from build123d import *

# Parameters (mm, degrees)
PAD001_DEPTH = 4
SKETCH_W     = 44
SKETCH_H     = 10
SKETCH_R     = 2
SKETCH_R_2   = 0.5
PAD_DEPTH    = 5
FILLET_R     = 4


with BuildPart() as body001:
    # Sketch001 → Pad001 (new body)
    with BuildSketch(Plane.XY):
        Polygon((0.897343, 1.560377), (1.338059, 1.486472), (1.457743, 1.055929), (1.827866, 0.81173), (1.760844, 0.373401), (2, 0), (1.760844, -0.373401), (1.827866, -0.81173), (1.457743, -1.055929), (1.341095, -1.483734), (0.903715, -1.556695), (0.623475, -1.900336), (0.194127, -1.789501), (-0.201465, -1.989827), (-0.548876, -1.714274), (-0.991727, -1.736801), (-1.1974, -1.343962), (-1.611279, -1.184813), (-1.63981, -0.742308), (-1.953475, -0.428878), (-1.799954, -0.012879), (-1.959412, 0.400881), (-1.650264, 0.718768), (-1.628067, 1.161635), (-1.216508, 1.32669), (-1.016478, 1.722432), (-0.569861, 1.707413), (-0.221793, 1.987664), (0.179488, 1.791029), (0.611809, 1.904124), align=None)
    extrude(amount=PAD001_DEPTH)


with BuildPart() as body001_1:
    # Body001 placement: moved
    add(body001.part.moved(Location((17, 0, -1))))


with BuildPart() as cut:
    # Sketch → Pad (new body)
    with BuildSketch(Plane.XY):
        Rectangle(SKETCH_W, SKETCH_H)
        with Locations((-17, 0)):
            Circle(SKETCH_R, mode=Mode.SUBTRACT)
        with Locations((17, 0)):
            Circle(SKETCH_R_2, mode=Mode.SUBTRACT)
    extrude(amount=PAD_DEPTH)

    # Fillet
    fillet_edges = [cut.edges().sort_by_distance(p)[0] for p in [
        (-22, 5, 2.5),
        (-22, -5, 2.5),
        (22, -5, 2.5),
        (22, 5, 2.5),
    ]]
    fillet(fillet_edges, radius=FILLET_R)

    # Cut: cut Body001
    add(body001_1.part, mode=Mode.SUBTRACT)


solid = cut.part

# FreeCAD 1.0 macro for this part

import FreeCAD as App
import Part
import Sketcher

V = App.Vector
Q = App.Units.Quantity


def edges_at(feature, points):
    """Names of the edges that pass closest to the given points."""
    edges = feature.Shape.Edges
    near = lambda p: min(range(len(edges)), key=lambda i: edges[i].distToShape(Part.Vertex(*p))[0])
    return sorted({f"Edge{near(p) + 1}" for p in points})

doc = App.newDocument("Part")
params = doc.addObject("Spreadsheet::Sheet", "Params")
for row, (alias, value) in enumerate([
    ("pad1_length", "4 mm"),
    ("sketch2_diameter", "4 mm"),
    ("sketch2_diameter2", "1 mm"),
    ("sketch2_width", "44 mm"),
    ("sketch2_height", "10 mm"),
    ("pad2_length", "5 mm"),
    ("fillet_radius", "4 mm"),
], start=1):
    params.set(f"A{row}", alias)
    params.set(f"B{row}", "=" + value)
    params.setAlias(f"B{row}", alias)

body = doc.addObject("PartDesign::Body", "Body")

sketch1 = body.newObject("Sketcher::SketchObject", "Sketch")
sketch1.AttachmentSupport = (doc.getObject("XY_Plane"), [""])
sketch1.MapMode = "FlatFace"
sketch1.addGeometry([
    Part.LineSegment(V(1.338059, 1.486472, 0), V(0.897343, 1.560377, 0)),
    Part.LineSegment(V(0.897343, 1.560377, 0), V(0.611809, 1.904124, 0)),
    Part.LineSegment(V(0.611809, 1.904124, 0), V(0.179488, 1.791029, 0)),
    Part.LineSegment(V(0.179488, 1.791029, 0), V(-0.221793, 1.987664, 0)),
    Part.LineSegment(V(-0.221793, 1.987664, 0), V(-0.569861, 1.707413, 0)),
    Part.LineSegment(V(-0.569861, 1.707413, 0), V(-1.016478, 1.722432, 0)),
    Part.LineSegment(V(-1.016478, 1.722432, 0), V(-1.216508, 1.32669, 0)),
    Part.LineSegment(V(-1.216508, 1.32669, 0), V(-1.628067, 1.161635, 0)),
    Part.LineSegment(V(-1.628067, 1.161635, 0), V(-1.650264, 0.718768, 0)),
    Part.LineSegment(V(-1.650264, 0.718768, 0), V(-1.959412, 0.400881, 0)),
    Part.LineSegment(V(-1.959412, 0.400881, 0), V(-1.799954, -0.012879, 0)),
    Part.LineSegment(V(-1.799954, -0.012879, 0), V(-1.953475, -0.428878, 0)),
    Part.LineSegment(V(-1.953475, -0.428878, 0), V(-1.63981, -0.742308, 0)),
    Part.LineSegment(V(-1.63981, -0.742308, 0), V(-1.611279, -1.184813, 0)),
    Part.LineSegment(V(-1.611279, -1.184813, 0), V(-1.1974, -1.343962, 0)),
    Part.LineSegment(V(-1.1974, -1.343962, 0), V(-0.991727, -1.736801, 0)),
    Part.LineSegment(V(-0.991727, -1.736801, 0), V(-0.548876, -1.714274, 0)),
    Part.LineSegment(V(-0.548876, -1.714274, 0), V(-0.201465, -1.989827, 0)),
    Part.LineSegment(V(-0.201465, -1.989827, 0), V(0.194127, -1.789501, 0)),
    Part.LineSegment(V(0.194127, -1.789501, 0), V(0.623475, -1.900336, 0)),
    Part.LineSegment(V(0.623475, -1.900336, 0), V(0.903715, -1.556695, 0)),
    Part.LineSegment(V(0.903715, -1.556695, 0), V(1.341095, -1.483734, 0)),
    Part.LineSegment(V(1.341095, -1.483734, 0), V(1.457743, -1.055929, 0)),
    Part.LineSegment(V(1.457743, -1.055929, 0), V(1.827866, -0.81173, 0)),
    Part.LineSegment(V(1.827866, -0.81173, 0), V(1.760844, -0.373401, 0)),
    Part.LineSegment(V(1.760844, -0.373401, 0), V(2, 0, 0)),
    Part.LineSegment(V(2, 0, 0), V(1.760844, 0.373401, 0)),
    Part.LineSegment(V(1.760844, 0.373401, 0), V(1.827866, 0.81173, 0)),
    Part.LineSegment(V(1.827866, 0.81173, 0), V(1.457743, 1.055929, 0)),
    Part.LineSegment(V(1.457743, 1.055929, 0), V(1.338059, 1.486472, 0)),
], False)
sketch1.addConstraint([
    Sketcher.Constraint("Coincident", 0, 2, 1, 1),
    Sketcher.Constraint("Coincident", 1, 2, 2, 1),
    Sketcher.Constraint("Coincident", 2, 2, 3, 1),
    Sketcher.Constraint("Coincident", 3, 2, 4, 1),
    Sketcher.Constraint("Coincident", 4, 2, 5, 1),
    Sketcher.Constraint("Coincident", 5, 2, 6, 1),
    Sketcher.Constraint("Coincident", 6, 2, 7, 1),
    Sketcher.Constraint("Coincident", 7, 2, 8, 1),
    Sketcher.Constraint("Coincident", 8, 2, 9, 1),
    Sketcher.Constraint("Coincident", 9, 2, 10, 1),
    Sketcher.Constraint("Coincident", 10, 2, 11, 1),
    Sketcher.Constraint("Coincident", 11, 2, 12, 1),
    Sketcher.Constraint("Coincident", 12, 2, 13, 1),
    Sketcher.Constraint("Coincident", 13, 2, 14, 1),
    Sketcher.Constraint("Coincident", 14, 2, 15, 1),
    Sketcher.Constraint("Coincident", 15, 2, 16, 1),
    Sketcher.Constraint("Coincident", 16, 2, 17, 1),
    Sketcher.Constraint("Coincident", 17, 2, 18, 1),
    Sketcher.Constraint("Coincident", 18, 2, 19, 1),
    Sketcher.Constraint("Coincident", 19, 2, 20, 1),
    Sketcher.Constraint("Coincident", 20, 2, 21, 1),
    Sketcher.Constraint("Coincident", 21, 2, 22, 1),
    Sketcher.Constraint("Coincident", 22, 2, 23, 1),
    Sketcher.Constraint("Coincident", 23, 2, 24, 1),
    Sketcher.Constraint("Coincident", 24, 2, 25, 1),
    Sketcher.Constraint("Coincident", 25, 2, 26, 1),
    Sketcher.Constraint("Coincident", 26, 2, 27, 1),
    Sketcher.Constraint("Coincident", 27, 2, 28, 1),
    Sketcher.Constraint("Coincident", 28, 2, 29, 1),
    Sketcher.Constraint("Coincident", 29, 2, 0, 1),
    Sketcher.Constraint("PointOnObject", 25, 2, -1),
    Sketcher.Constraint("DistanceX", -1, 1, 25, 2, Q("2 mm")),
    Sketcher.Constraint("DistanceY", 11, 2, 10, 2, Q("0.415999 mm")),
    Sketcher.Constraint("DistanceX", 14, 2, -1, 1, Q("1.1974 mm")),
    Sketcher.Constraint("DistanceY", 15, 2, -1, 1, Q("1.736801 mm")),
    Sketcher.Constraint("DistanceY", 18, 2, -1, 1, Q("1.789501 mm")),
    Sketcher.Constraint("DistanceY", 24, 2, -1, 1, Q("0.373401 mm")),
    Sketcher.Constraint("DistanceY", -1, 1, 26, 2, Q("0.373401 mm")),
    Sketcher.Constraint("DistanceX", 9, 2, 12, 2, Q("0.319602 mm")),
    Sketcher.Constraint("DistanceX", 11, 2, 16, 2, Q("1.404599 mm")),
    Sketcher.Constraint("DistanceY", 19, 2, 21, 2, Q("0.416602 mm")),
    Sketcher.Constraint("DistanceY", 17, 2, 22, 2, Q("0.933898 mm")),
    Sketcher.Constraint("DistanceY", 22, 2, 23, 2, Q("0.244199 mm")),
    Sketcher.Constraint("DistanceX", 22, 2, 24, 2, Q("0.303101 mm")),
    Sketcher.Constraint("DistanceX", 22, 2, 26, 2, Q("0.303101 mm")),
    Sketcher.Constraint("DistanceX", 0, 2, 26, 2, Q("0.863501 mm")),
    Sketcher.Constraint("DistanceY", 27, 2, 28, 2, Q("0.244199 mm")),
    Sketcher.Constraint("DistanceX", 28, 2, 26, 2, Q("0.303101 mm")),
    Sketcher.Constraint("Distance", 0, Q("0.44687 mm")),
    Sketcher.Constraint("Distance", 1, Q("0.446869 mm")),
    Sketcher.Constraint("Distance", 2, Q("0.446869 mm")),
    Sketcher.Constraint("Distance", 3, Q("0.446869 mm")),
    Sketcher.Constraint("Distance", 4, Q("0.446869 mm")),
    Sketcher.Constraint("Distance", 5, Q("0.446869 mm")),
    Sketcher.Constraint("Distance", 29, Q("0.446869 mm")),
    Sketcher.Constraint("DistanceX", -1, 1, 1, 2, Q("0.611809 mm")),
    Sketcher.Constraint("DistanceY", -1, 1, 2, 2, Q("1.791029 mm")),
    Sketcher.Constraint("DistanceX", 4, 2, -1, 1, Q("0.569861 mm")),
    Sketcher.Constraint("DistanceY", -1, 1, 6, 2, Q("1.32669 mm")),
    Sketcher.Constraint("DistanceX", 9, 2, -1, 1, Q("1.959412 mm")),
    Sketcher.Constraint("DistanceY", -1, 1, 9, 2, Q("0.400881 mm")),
    Sketcher.Constraint("DistanceY", 10, 2, -1, 1, Q("0.012879 mm")),
    Sketcher.Constraint("DistanceX", 13, 2, -1, 1, Q("1.611279 mm")),
    Sketcher.Constraint("DistanceY", 22, 2, -1, 1, Q("1.055929 mm")),
    Sketcher.Constraint("DistanceY", -1, 1, 27, 2, Q("0.81173 mm")),
    Sketcher.Constraint("DistanceX", -1, 1, 29, 2, Q("1.338059 mm")),
    Sketcher.Constraint("DistanceX", 2, 2, 1, 2, Q("0.432321 mm")),
    Sketcher.Constraint("DistanceX", 3, 2, 2, 2, Q("0.401281 mm")),
    Sketcher.Constraint("DistanceY", 4, 2, 5, 2, Q("0.015019 mm")),
    Sketcher.Constraint("DistanceX", 6, 2, 5, 2, Q("0.20003 mm")),
    Sketcher.Constraint("DistanceX", 7, 2, 6, 2, Q("0.411559 mm")),
    Sketcher.Constraint("DistanceY", 7, 2, 4, 2, Q("0.545778 mm")),
    Sketcher.Constraint("DistanceY", 8, 2, 6, 2, Q("0.607922 mm")),
    Sketcher.Constraint("DistanceX", 8, 2, 3, 2, Q("1.428471 mm")),
    Sketcher.Constraint("DistanceX", 10, 2, 8, 2, Q("0.14969 mm")),
    Sketcher.Constraint("DistanceX", 11, 2, 10, 2, Q("0.153521 mm")),
    Sketcher.Constraint("DistanceY", 12, 2, 11, 2, Q("0.31343 mm")),
    Sketcher.Constraint("DistanceY", 13, 2, 8, 2, Q("1.903581 mm")),
    Sketcher.Constraint("DistanceY", 14, 2, 13, 2, Q("0.159149 mm")),
    Sketcher.Constraint("DistanceX", 13, 2, 15, 2, Q("0.619552 mm")),
    Sketcher.Constraint("DistanceY", 16, 2, 13, 2, Q("0.529461 mm")),
    Sketcher.Constraint("DistanceX", 16, 2, 17, 2, Q("0.347411 mm")),
    Sketcher.Constraint("DistanceX", 17, 2, 19, 2, Q("0.82494 mm")),
    Sketcher.Constraint("DistanceY", 17, 2, 19, 2, Q("0.089491 mm")),
    Sketcher.Constraint("DistanceX", 19, 2, 20, 2, Q("0.28024 mm")),
    Sketcher.Constraint("DistanceY", 19, 2, 20, 2, Q("0.343641 mm")),
    Sketcher.Constraint("DistanceX", 18, 2, 20, 2, Q("0.709588 mm")),
    Sketcher.Constraint("DistanceX", 20, 2, 21, 2, Q("0.43738 mm")),
    Sketcher.Constraint("DistanceX", 21, 2, 23, 2, Q("0.486771 mm")),
    Sketcher.Constraint("DistanceX", 26, 2, 27, 2, Q("0.067022 mm")),
])
pad1 = body.newObject("PartDesign::Pad", "Pad")
pad1.Profile = sketch1
pad1.setExpression("Length", "Params.pad1_length")
body2 = doc.addObject("PartDesign::Body", "Body001")
doc.recompute()

body.Placement = App.Placement(V(17, 0, -1), App.Rotation(V(0, 0, 1), 0))
boolean = body2.newObject("PartDesign::Boolean", "Boolean")
boolean.Type = "Fuse"
boolean.addObjects([body])
body3 = doc.addObject("PartDesign::Body", "Body002")

sketch2 = body3.newObject("Sketcher::SketchObject", "Sketch001")
sketch2.AttachmentSupport = (doc.getObject("XY_Plane002"), [""])
sketch2.MapMode = "FlatFace"
sketch2.addGeometry([
    Part.LineSegment(V(-22, 5, 0), V(-22, -5, 0)),
    Part.LineSegment(V(-22, -5, 0), V(22, -5, 0)),
    Part.LineSegment(V(22, -5, 0), V(22, 5, 0)),
    Part.LineSegment(V(22, 5, 0), V(-22, 5, 0)),
    Part.Circle(V(-17, 0, 0), V(0, 0, 1), 2),
    Part.Circle(V(17, 0, 0), V(0, 0, 1), 0.5),
], False)
sketch2.addConstraint([
    Sketcher.Constraint("Coincident", 0, 2, 1, 1),
    Sketcher.Constraint("Coincident", 1, 2, 2, 1),
    Sketcher.Constraint("Coincident", 2, 2, 3, 1),
    Sketcher.Constraint("Coincident", 3, 2, 0, 1),
    Sketcher.Constraint("Vertical", 0),
    Sketcher.Constraint("Horizontal", 1),
    Sketcher.Constraint("Vertical", 2),
    Sketcher.Constraint("Horizontal", 3),
    Sketcher.Constraint("Symmetric", 4, 3, 5, 3, -1, 1),
    Sketcher.Constraint("Symmetric", 0, 2, 2, 2, -1, 1),
    Sketcher.Constraint("PointOnObject", 4, 3, -1),
    Sketcher.Constraint("Diameter", 4, Q("4 mm")),
    Sketcher.Constraint("Diameter", 5, Q("1 mm")),
    Sketcher.Constraint("DistanceX", 1, 1, 1, 2, Q("44 mm")),
    Sketcher.Constraint("DistanceY", 0, 2, 0, 1, Q("10 mm")),
    Sketcher.Constraint("DistanceX", 4, 3, -1, 1, Q("17 mm")),
])
sketch2.setExpression("Constraints[11]", "Params.sketch2_diameter")
sketch2.setExpression("Constraints[12]", "Params.sketch2_diameter2")
sketch2.setExpression("Constraints[13]", "Params.sketch2_width")
sketch2.setExpression("Constraints[14]", "Params.sketch2_height")
pad2 = body3.newObject("PartDesign::Pad", "Pad001")
pad2.Profile = sketch2
pad2.setExpression("Length", "Params.pad2_length")
doc.recompute()

fillet = body3.newObject("PartDesign::Fillet", "Fillet")
fillet.Base = (pad2, edges_at(pad2, [
    (-22, 5, 2.5),
    (-22, -5, 2.5),
    (22, -5, 2.5),
    (22, 5, 2.5),
]))
fillet.setExpression("Radius", "Params.fillet_radius")
doc.recompute()

boolean2 = body3.newObject("PartDesign::Boolean", "Boolean001")
boolean2.Type = "Cut"
boolean2.addObjects([body2])

doc.recompute()
